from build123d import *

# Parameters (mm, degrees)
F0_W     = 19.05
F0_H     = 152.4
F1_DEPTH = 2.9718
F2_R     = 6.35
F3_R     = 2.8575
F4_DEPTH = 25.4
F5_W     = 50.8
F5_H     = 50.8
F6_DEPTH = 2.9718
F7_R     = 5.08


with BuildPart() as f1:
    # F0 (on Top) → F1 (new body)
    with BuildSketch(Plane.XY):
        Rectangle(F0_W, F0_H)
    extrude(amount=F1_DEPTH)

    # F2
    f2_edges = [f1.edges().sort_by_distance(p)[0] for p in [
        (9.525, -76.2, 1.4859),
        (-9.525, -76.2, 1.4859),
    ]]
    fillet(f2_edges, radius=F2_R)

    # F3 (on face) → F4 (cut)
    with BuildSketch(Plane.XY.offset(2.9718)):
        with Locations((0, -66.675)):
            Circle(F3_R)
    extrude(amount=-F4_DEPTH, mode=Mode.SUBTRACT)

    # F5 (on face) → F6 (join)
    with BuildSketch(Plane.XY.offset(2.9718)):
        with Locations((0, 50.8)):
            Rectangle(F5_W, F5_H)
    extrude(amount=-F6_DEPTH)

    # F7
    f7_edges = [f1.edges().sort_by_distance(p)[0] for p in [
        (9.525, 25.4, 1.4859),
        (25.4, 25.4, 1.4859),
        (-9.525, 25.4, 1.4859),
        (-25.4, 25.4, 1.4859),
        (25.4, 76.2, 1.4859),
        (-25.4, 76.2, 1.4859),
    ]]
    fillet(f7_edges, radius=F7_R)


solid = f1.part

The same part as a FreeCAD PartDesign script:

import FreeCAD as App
import Part
import Sketcher

V = App.Vector
Q = App.Units.Quantity


def edges_at(feature, points):
    """Names of the edges that pass closest to the given points."""
    edges = feature.Shape.Edges
    near = lambda p: min(range(len(edges)), key=lambda i: edges[i].distToShape(Part.Vertex(*p))[0])
    return sorted({f"Edge{near(p) + 1}" for p in points})

doc = App.newDocument("Part")
body = doc.addObject("PartDesign::Body", "Body")

sketch1 = body.newObject("Sketcher::SketchObject", "Sketch")
sketch1.AttachmentSupport = (doc.getObject("XY_Plane"), [""])
sketch1.MapMode = "FlatFace"
sketch1.addGeometry([
    Part.LineSegment(V(-9.525, 76.2, 0), V(-9.525, -76.2, 0)),
    Part.LineSegment(V(-9.525, -76.2, 0), V(9.525, -76.2, 0)),
    Part.LineSegment(V(9.525, -76.2, 0), V(9.525, 76.2, 0)),
    Part.LineSegment(V(9.525, 76.2, 0), V(-9.525, 76.2, 0)),
], False)
sketch1.addConstraint([
    Sketcher.Constraint("Coincident", 0, 2, 1, 1),
    Sketcher.Constraint("Coincident", 1, 2, 2, 1),
    Sketcher.Constraint("Coincident", 2, 2, 3, 1),
    Sketcher.Constraint("Coincident", 3, 2, 0, 1),
    Sketcher.Constraint("Vertical", 0),
    Sketcher.Constraint("Horizontal", 1),
    Sketcher.Constraint("Vertical", 2),
    Sketcher.Constraint("Horizontal", 3),
    Sketcher.Constraint("Symmetric", 0, 2, 2, 2, -1, 1),
    Sketcher.Constraint("DistanceY", 0, 2, 0, 1, Q("6 in")),
    Sketcher.Constraint("DistanceX", 1, 1, 1, 2, Q("0.75 in")),
])
pad1 = body.newObject("PartDesign::Pad", "Pad")
pad1.Profile = sketch1
pad1.Length = Q("0.117 in")
doc.recompute()

fillet = body.newObject("PartDesign::Fillet", "Fillet")
fillet.Base = (pad1, edges_at(pad1, [(9.525, -76.2, 1.486), (-9.525, -76.2, 1.486)]))
fillet.Radius = Q("0.25 in")

sketch2 = body.newObject("Sketcher::SketchObject", "Sketch001")
sketch2.AttachmentSupport = (doc.getObject("XY_Plane"), [""])
sketch2.MapMode = "FlatFace"
sketch2.AttachmentOffset = App.Placement(V(0, 0, 0.117 * 25.4), App.Rotation())
sketch2.addGeometry(Part.Circle(V(0, -66.675, 0), V(0, 0, 1), 2.8575), False)
sketch2.addConstraint([
    Sketcher.Constraint("PointOnObject", 0, 3, -2),
    Sketcher.Constraint("Diameter", 0, Q("0.225 in")),
    Sketcher.Constraint("DistanceY", 0, 3, -1, 1, Q("2.625 in")),
])
pocket1 = body.newObject("PartDesign::Pocket", "Pocket")
pocket1.Profile = sketch2
pocket1.Length = Q("1 in")

sketch3 = body.newObject("Sketcher::SketchObject", "Sketch002")
sketch3.AttachmentSupport = (doc.getObject("XY_Plane"), [""])
sketch3.MapMode = "FlatFace"
sketch3.AttachmentOffset = App.Placement(V(0, 0, 0.117 * 25.4), App.Rotation())
sketch3.addGeometry([
    Part.LineSegment(V(-25.4, 76.2, 0), V(-25.4, 25.4, 0)),
    Part.LineSegment(V(-25.4, 25.4, 0), V(25.4, 25.4, 0)),
    Part.LineSegment(V(25.4, 25.4, 0), V(25.4, 76.2, 0)),
    Part.LineSegment(V(25.4, 76.2, 0), V(-25.4, 76.2, 0)),
], False)
sketch3.addConstraint([
    Sketcher.Constraint("Coincident", 0, 2, 1, 1),
    Sketcher.Constraint("Coincident", 1, 2, 2, 1),
    Sketcher.Constraint("Coincident", 2, 2, 3, 1),
    Sketcher.Constraint("Coincident", 3, 2, 0, 1),
    Sketcher.Constraint("Vertical", 0),
    Sketcher.Constraint("Horizontal", 1),
    Sketcher.Constraint("Vertical", 2),
    Sketcher.Constraint("Horizontal", 3),
    Sketcher.Constraint("Equal", 3, 0),
    Sketcher.Constraint("DistanceX", 1, 1, 1, 2, Q("2 in")),
    Sketcher.Constraint("DistanceX", 0, 2, -1, 1, Q("1 in")),
    Sketcher.Constraint("DistanceY", -1, 1, 0, 2, Q("1 in")),
])
pad2 = body.newObject("PartDesign::Pad", "Pad001")
pad2.Profile = sketch3
pad2.Length = Q("0.117 in")
pad2.Reversed = True
doc.recompute()

fillet2 = body.newObject("PartDesign::Fillet", "Fillet001")
fillet2.Base = (pad2, edges_at(pad2, [
    (9.525, 25.4, 1.486),
    (25.4, 25.4, 1.486),
    (-9.525, 25.4, 1.486),
    (-25.4, 25.4, 1.486),
    (25.4, 76.2, 1.486),
    (-25.4, 76.2, 1.486),
]))
fillet2.Radius = Q("0.2 in")

doc.recompute()
